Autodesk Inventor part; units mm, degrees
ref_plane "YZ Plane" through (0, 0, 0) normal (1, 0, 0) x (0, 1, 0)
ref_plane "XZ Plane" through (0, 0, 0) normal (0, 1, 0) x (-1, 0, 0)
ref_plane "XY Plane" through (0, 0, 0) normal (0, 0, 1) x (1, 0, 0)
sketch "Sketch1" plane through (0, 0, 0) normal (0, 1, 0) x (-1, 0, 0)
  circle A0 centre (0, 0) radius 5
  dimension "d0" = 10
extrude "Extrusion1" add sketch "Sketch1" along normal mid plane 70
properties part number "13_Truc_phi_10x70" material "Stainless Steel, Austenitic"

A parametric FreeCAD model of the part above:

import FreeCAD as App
import Part
import Sketcher

V = App.Vector

doc = App.newDocument("Part")
body = doc.addObject("PartDesign::Body", "Body")

# Sketch on XZ plane
sketch1 = doc.addObject("Sketcher::SketchObject", "Sketch")
body.addObject(sketch1)
sketch1.AttachmentSupport = (doc.XZ_Plane, [""])
sketch1.MapMode = "FlatFace"
sketch1.addGeometry(Part.Circle(V(0, 0, 0), V(0, 0, 1), 5), False)
sketch1.addConstraint([
    Sketcher.Constraint("Coincident", 0, 3, -1, 1),
    Sketcher.Constraint("Diameter", 0, 10.0),
])
pad1 = doc.addObject("PartDesign::Pad", "Pad")
body.addObject(pad1)
pad1.Profile = sketch1
pad1.Length = 70
pad1.Midplane = True

doc.recompute()
